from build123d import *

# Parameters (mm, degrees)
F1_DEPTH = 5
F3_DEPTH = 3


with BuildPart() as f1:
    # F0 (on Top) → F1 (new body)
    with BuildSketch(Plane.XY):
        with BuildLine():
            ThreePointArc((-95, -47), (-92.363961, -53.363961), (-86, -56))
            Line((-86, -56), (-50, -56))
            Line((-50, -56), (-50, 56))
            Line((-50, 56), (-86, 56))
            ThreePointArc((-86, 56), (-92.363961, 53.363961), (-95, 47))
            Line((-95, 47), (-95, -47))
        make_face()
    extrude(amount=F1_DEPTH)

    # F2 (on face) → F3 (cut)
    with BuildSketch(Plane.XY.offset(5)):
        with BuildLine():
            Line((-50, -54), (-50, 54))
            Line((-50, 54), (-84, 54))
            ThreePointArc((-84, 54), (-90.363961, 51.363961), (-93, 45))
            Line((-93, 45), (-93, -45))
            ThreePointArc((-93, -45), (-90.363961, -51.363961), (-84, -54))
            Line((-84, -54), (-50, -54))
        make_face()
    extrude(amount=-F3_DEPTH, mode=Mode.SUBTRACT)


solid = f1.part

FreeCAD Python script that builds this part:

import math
import FreeCAD as App
import Part
import Sketcher
from FreeCAD import Vector

doc = App.newDocument("Part")
params = doc.addObject("Spreadsheet::Sheet", "Params")
for row, (alias, value) in enumerate([
    ("sketch1_radius", "9 mm"),
    ("sketch1_width", "36 mm"),
    ("sketch1_height", "112 mm"),
    ("pad1_length", "5 mm"),
    ("sketch2_radius", "9 mm"),
    ("sketch2_width", "34 mm"),
    ("sketch2_height", "108 mm"),
    ("pocket1_length", "3 mm"),
], start=1):
    params.set(f"A{row}", alias)
    params.set(f"B{row}", "=" + value)
    params.setAlias(f"B{row}", alias)

body = doc.addObject("PartDesign::Body", "Body")

sketch1 = body.newObject("Sketcher::SketchObject", "Sketch")
sketch1.AttachmentSupport = (doc.getObject("XY_Plane"), [""])
sketch1.MapMode = "FlatFace"
sketch1.addGeometry(Part.ArcOfCircle(Part.Circle(Vector(-86, -47, 0), Vector(0, 0, 1), 9), math.radians(-180), math.radians(-90)), False)
sketch1.addGeometry(Part.LineSegment(Vector(-86, -56, 0), Vector(-50, -56, 0)), False)
sketch1.addGeometry(Part.LineSegment(Vector(-50, -56, 0), Vector(-50, 56, 0)), False)
sketch1.addGeometry(Part.LineSegment(Vector(-50, 56, 0), Vector(-86, 56, 0)), False)
sketch1.addGeometry(Part.ArcOfCircle(Part.Circle(Vector(-86, 47, 0), Vector(0, 0, 1), 9), math.radians(90), math.radians(180)), False)
sketch1.addGeometry(Part.LineSegment(Vector(-95, 47, 0), Vector(-95, -47, 0)), False)
sketch1.addConstraint(Sketcher.Constraint("Tangent", 0, 2, 1, 1))
sketch1.addConstraint(Sketcher.Constraint("Coincident", 1, 2, 2, 1))
sketch1.addConstraint(Sketcher.Constraint("Coincident", 2, 2, 3, 1))
sketch1.addConstraint(Sketcher.Constraint("Tangent", 3, 2, 4, 1))
sketch1.addConstraint(Sketcher.Constraint("Tangent", 4, 2, 5, 1))
sketch1.addConstraint(Sketcher.Constraint("Tangent", 5, 2, 0, 1))
sketch1.addConstraint(Sketcher.Constraint("Horizontal", 1))
sketch1.addConstraint(Sketcher.Constraint("Vertical", 2))
sketch1.addConstraint(Sketcher.Constraint("Horizontal", 3))
sketch1.addConstraint(Sketcher.Constraint("Vertical", 5))
sketch1.addConstraint(Sketcher.Constraint("Equal", 0, 4))
sketch1.addConstraint(Sketcher.Constraint("Radius", 0, 9.0))
sketch1.addConstraint(Sketcher.Constraint("DistanceX", 1, 1, 1, 2, 36.0))
sketch1.addConstraint(Sketcher.Constraint("DistanceY", 2, 1, 2, 2, 112.0))
sketch1.addConstraint(Sketcher.Constraint("DistanceX", 0, 3, -1, 1, 86.0))
sketch1.addConstraint(Sketcher.Constraint("DistanceY", 0, 3, -1, 1, 47.0))
sketch1.setExpression("Constraints[11]", "Params.sketch1_radius")
sketch1.setExpression("Constraints[12]", "Params.sketch1_width")
sketch1.setExpression("Constraints[13]", "Params.sketch1_height")
pad1 = body.newObject("PartDesign::Pad", "Pad")
pad1.Profile = sketch1
pad1.setExpression("Length", "Params.pad1_length")

sketch2 = body.newObject("Sketcher::SketchObject", "Sketch001")
sketch2.AttachmentSupport = (doc.getObject("XY_Plane"), [""])
sketch2.MapMode = "FlatFace"
sketch2.AttachmentOffset = App.Placement(Vector(0, 0, 5), App.Rotation())
sketch2.addGeometry(Part.LineSegment(Vector(-50, -54, 0), Vector(-50, 54, 0)), False)
sketch2.addGeometry(Part.LineSegment(Vector(-50, 54, 0), Vector(-84, 54, 0)), False)
sketch2.addGeometry(Part.ArcOfCircle(Part.Circle(Vector(-84, 45, 0), Vector(0, 0, 1), 9), math.radians(90), math.radians(180)), False)
sketch2.addGeometry(Part.LineSegment(Vector(-93, 45, 0), Vector(-93, -45, 0)), False)
sketch2.addGeometry(Part.ArcOfCircle(Part.Circle(Vector(-84, -45, 0), Vector(0, 0, 1), 9), math.radians(-180), math.radians(-90)), False)
sketch2.addGeometry(Part.LineSegment(Vector(-84, -54, 0), Vector(-50, -54, 0)), False)
sketch2.addConstraint(Sketcher.Constraint("Coincident", 0, 2, 1, 1))
sketch2.addConstraint(Sketcher.Constraint("Tangent", 1, 2, 2, 1))
sketch2.addConstraint(Sketcher.Constraint("Tangent", 2, 2, 3, 1))
sketch2.addConstraint(Sketcher.Constraint("Tangent", 3, 2, 4, 1))
sketch2.addConstraint(Sketcher.Constraint("Tangent", 4, 2, 5, 1))
sketch2.addConstraint(Sketcher.Constraint("Coincident", 5, 2, 0, 1))
sketch2.addConstraint(Sketcher.Constraint("Vertical", 0))
sketch2.addConstraint(Sketcher.Constraint("Horizontal", 1))
sketch2.addConstraint(Sketcher.Constraint("Vertical", 3))
sketch2.addConstraint(Sketcher.Constraint("Horizontal", 5))
sketch2.addConstraint(Sketcher.Constraint("Equal", 2, 4))
sketch2.addConstraint(Sketcher.Constraint("Radius", 2, 9.0))
sketch2.addConstraint(Sketcher.Constraint("DistanceX", 1, 2, 1, 1, 34.0))
sketch2.addConstraint(Sketcher.Constraint("DistanceY", 0, 1, 0, 2, 108.0))
sketch2.addConstraint(Sketcher.Constraint("DistanceX", 2, 3, -1, 1, 84.0))
sketch2.addConstraint(Sketcher.Constraint("DistanceY", -1, 1, 2, 3, 45.0))
sketch2.setExpression("Constraints[11]", "Params.sketch2_radius")
sketch2.setExpression("Constraints[12]", "Params.sketch2_width")
sketch2.setExpression("Constraints[13]", "Params.sketch2_height")
pocket1 = body.newObject("PartDesign::Pocket", "Pocket")
pocket1.Profile = sketch2
pocket1.setExpression("Length", "Params.pocket1_length")

doc.recompute()
